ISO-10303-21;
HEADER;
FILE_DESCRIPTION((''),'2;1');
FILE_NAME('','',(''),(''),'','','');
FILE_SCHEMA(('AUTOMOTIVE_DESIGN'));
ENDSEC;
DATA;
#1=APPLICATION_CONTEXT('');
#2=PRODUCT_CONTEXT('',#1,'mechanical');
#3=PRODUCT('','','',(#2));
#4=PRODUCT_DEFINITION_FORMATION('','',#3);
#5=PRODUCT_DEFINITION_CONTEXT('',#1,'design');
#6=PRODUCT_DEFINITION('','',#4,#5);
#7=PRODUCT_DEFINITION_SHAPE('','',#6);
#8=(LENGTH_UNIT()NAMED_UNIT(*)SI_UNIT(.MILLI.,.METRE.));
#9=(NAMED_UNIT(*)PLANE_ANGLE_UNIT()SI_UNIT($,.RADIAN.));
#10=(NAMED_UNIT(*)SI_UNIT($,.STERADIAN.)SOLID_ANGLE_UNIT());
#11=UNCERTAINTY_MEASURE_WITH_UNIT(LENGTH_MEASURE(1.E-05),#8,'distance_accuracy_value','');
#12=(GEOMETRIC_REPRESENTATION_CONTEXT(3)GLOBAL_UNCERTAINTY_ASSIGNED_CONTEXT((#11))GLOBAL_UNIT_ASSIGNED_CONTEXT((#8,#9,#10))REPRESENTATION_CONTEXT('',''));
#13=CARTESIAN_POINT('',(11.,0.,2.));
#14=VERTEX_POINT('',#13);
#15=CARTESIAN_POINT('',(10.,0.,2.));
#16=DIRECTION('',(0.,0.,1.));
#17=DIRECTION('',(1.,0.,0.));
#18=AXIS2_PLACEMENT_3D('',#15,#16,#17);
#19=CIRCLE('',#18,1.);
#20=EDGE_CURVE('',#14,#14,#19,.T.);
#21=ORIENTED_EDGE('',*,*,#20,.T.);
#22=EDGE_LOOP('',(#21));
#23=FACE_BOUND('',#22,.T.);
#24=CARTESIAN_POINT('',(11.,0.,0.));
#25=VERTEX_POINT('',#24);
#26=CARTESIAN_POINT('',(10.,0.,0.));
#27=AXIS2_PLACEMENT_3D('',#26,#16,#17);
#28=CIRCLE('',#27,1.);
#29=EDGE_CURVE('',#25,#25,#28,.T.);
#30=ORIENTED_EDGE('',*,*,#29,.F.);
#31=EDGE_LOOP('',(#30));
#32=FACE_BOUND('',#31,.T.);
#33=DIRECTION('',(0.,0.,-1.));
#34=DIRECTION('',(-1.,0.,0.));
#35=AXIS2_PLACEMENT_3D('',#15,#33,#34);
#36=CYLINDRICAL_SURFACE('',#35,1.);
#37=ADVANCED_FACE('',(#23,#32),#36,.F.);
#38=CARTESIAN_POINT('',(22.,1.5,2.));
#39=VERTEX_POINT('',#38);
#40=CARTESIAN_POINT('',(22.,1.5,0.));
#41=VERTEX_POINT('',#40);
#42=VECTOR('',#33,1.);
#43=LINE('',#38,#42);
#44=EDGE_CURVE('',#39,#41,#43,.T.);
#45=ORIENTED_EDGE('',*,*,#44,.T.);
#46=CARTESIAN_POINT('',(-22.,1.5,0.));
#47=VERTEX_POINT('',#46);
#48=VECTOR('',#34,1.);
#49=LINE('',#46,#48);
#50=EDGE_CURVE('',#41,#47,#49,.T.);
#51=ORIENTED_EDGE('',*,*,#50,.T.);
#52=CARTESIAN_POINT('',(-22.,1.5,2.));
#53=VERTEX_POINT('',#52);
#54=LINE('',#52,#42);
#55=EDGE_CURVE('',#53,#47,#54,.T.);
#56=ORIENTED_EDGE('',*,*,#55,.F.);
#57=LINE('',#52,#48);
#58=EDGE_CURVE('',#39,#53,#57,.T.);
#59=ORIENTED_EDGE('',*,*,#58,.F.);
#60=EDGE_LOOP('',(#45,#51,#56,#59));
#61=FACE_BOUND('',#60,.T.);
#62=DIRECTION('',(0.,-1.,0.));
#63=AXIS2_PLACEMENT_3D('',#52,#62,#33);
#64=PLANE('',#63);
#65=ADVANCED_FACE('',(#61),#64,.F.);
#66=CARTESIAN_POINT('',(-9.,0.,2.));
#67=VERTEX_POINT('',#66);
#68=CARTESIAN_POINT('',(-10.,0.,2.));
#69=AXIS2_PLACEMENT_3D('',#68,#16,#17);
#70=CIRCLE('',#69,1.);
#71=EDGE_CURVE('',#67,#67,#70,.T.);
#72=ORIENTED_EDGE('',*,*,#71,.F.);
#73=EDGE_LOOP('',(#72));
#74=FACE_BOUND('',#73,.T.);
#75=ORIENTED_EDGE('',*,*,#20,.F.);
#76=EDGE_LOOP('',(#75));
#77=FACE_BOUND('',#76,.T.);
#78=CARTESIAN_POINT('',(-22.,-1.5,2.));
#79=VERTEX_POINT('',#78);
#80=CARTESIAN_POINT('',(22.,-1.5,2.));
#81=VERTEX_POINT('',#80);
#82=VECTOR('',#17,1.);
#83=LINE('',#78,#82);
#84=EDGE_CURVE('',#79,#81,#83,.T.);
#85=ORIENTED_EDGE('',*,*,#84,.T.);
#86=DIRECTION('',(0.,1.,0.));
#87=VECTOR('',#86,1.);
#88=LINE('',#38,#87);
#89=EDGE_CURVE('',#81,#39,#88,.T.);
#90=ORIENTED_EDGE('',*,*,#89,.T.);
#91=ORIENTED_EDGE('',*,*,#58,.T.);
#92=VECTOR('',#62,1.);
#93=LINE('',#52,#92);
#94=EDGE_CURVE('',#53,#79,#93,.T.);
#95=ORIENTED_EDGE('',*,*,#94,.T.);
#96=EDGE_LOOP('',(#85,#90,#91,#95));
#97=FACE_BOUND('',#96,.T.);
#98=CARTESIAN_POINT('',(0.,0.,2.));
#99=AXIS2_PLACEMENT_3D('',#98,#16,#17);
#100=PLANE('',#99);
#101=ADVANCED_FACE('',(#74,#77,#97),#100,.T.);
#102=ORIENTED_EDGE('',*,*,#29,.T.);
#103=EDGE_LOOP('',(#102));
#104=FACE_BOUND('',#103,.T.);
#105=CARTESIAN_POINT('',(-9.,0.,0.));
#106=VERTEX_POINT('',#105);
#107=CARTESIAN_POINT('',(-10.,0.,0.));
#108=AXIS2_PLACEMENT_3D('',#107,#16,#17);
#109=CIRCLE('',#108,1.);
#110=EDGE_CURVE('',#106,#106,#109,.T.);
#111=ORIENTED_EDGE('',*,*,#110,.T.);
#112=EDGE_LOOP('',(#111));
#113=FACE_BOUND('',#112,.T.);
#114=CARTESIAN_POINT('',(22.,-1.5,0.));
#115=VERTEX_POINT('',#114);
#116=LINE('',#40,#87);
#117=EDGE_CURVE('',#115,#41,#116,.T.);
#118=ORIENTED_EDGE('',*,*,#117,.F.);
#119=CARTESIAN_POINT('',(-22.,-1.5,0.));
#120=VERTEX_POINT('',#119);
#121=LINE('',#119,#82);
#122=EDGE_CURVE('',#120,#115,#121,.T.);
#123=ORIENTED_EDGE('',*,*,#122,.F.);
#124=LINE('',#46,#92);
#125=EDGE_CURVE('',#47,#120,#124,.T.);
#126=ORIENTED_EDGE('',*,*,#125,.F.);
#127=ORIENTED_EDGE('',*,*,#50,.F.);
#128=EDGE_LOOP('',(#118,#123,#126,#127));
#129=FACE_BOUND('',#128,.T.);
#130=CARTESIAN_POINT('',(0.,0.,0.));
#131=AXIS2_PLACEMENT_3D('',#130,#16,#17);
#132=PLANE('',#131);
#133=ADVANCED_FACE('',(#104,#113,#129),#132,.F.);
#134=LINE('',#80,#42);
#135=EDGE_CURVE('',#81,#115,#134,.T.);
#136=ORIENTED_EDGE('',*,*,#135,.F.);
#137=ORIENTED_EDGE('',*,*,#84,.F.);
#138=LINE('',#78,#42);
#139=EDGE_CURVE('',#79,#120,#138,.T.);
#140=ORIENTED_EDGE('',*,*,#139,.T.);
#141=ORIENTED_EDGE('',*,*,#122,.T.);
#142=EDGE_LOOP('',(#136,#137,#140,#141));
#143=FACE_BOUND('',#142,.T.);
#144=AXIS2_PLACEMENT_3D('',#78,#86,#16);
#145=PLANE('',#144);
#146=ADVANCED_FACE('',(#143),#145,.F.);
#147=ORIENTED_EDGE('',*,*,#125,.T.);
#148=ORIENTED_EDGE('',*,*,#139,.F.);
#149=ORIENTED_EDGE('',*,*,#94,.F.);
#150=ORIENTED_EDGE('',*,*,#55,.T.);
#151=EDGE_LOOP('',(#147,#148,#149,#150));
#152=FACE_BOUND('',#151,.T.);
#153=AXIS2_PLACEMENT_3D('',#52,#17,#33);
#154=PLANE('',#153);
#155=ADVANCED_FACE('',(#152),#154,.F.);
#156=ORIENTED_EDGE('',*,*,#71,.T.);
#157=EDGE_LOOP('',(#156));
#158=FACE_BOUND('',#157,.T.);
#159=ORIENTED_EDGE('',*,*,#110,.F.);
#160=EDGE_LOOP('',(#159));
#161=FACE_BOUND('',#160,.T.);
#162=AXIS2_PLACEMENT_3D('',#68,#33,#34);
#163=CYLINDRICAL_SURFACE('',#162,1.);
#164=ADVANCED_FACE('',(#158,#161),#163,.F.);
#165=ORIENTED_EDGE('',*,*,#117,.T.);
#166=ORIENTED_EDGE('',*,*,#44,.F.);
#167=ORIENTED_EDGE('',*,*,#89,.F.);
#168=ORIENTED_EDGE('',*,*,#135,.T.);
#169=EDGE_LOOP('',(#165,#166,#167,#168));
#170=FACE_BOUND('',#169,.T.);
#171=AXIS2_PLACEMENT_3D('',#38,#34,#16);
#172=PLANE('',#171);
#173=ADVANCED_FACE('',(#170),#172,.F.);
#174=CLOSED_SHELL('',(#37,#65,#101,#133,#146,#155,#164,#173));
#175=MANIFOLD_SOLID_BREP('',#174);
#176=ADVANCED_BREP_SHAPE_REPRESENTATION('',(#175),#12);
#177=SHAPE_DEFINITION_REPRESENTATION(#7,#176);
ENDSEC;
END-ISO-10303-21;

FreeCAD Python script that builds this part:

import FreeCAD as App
import Part
import Sketcher
Q = App.Units.Quantity

doc = App.newDocument("Part")
body = doc.addObject("PartDesign::Body", "Body")

# Sketch on XY plane
sketch1 = doc.addObject("Sketcher::SketchObject", "Sketch")
body.addObject(sketch1)
sketch1.AttachmentSupport = (doc.XY_Plane, [""])
sketch1.MapMode = "FlatFace"
sketch1.addGeometry([
    Part.LineSegment(App.Vector(-22, 1.5, 0), App.Vector(-22, -1.5, 0)),  # 0
    Part.LineSegment(App.Vector(-22, -1.5, 0), App.Vector(22, -1.5, 0)),  # 1
    Part.LineSegment(App.Vector(22, -1.5, 0), App.Vector(22, 1.5, 0)),  # 2
    Part.LineSegment(App.Vector(22, 1.5, 0), App.Vector(-22, 1.5, 0)),  # 3
    Part.Circle(App.Vector(-10, 0, 0), App.Vector(0, 0, 1), 1),  # 4
    Part.Circle(App.Vector(10, 0, 0), App.Vector(0, 0, 1), 1),  # 5
], False)
sketch1.addConstraint([
    Sketcher.Constraint("Coincident", 0, 2, 1, 1),
    Sketcher.Constraint("Coincident", 1, 2, 2, 1),
    Sketcher.Constraint("Coincident", 2, 2, 3, 1),
    Sketcher.Constraint("Coincident", 3, 2, 0, 1),
    Sketcher.Constraint("Vertical", 0),
    Sketcher.Constraint("Horizontal", 1),
    Sketcher.Constraint("Vertical", 2),
    Sketcher.Constraint("Horizontal", 3),
    Sketcher.Constraint("Equal", 4, 5),
    Sketcher.Constraint("Symmetric", 4, 3, 5, 3, -1, 1),
    Sketcher.Constraint("Symmetric", 0, 2, 2, 2, -1, 1),
    Sketcher.Constraint("PointOnObject", 4, 3, -1),
    Sketcher.Constraint("Diameter", 4, Q("2 mm")),
    Sketcher.Constraint("DistanceX", 1, 1, 1, 2, Q("44 mm")),
    Sketcher.Constraint("DistanceY", 0, 2, 0, 1, Q("3 mm")),
    Sketcher.Constraint("DistanceX", 4, 3, -1, 1, Q("10 mm")),
])
pad1 = doc.addObject("PartDesign::Pad", "Pad")
body.addObject(pad1)
pad1.Profile = sketch1
pad1.Length = 2

doc.recompute()
